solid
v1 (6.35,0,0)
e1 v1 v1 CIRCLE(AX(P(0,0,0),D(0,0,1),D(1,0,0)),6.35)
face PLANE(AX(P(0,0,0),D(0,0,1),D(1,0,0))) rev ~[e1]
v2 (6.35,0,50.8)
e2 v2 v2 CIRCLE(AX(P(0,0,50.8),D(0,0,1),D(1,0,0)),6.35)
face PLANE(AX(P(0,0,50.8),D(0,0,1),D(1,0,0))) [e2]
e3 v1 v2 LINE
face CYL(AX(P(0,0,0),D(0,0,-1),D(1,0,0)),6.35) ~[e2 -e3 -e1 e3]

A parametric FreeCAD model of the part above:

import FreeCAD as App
import Part
import Sketcher
from FreeCAD import Vector
Q = App.Units.Quantity

doc = App.newDocument("Part")
body = doc.addObject("PartDesign::Body", "Body")

sketch1 = doc.addObject("Sketcher::SketchObject", "Sketch")
body.addObject(sketch1)
sketch1.AttachmentSupport = (doc.XY_Plane, [""])
sketch1.MapMode = "FlatFace"
sketch1.addGeometry(Part.Circle(Vector(0, 0, 0), Vector(0, 0, 1), 6.35), False)
sketch1.addConstraint(Sketcher.Constraint("Coincident", 0, 3, -1, 1))
sketch1.addConstraint(Sketcher.Constraint("Diameter", 0, Q("0.5 in")))
pad1 = doc.addObject("PartDesign::Pad", "Pad")
body.addObject(pad1)
pad1.Profile = sketch1
pad1.Length = Q("2 in")

doc.recompute()
